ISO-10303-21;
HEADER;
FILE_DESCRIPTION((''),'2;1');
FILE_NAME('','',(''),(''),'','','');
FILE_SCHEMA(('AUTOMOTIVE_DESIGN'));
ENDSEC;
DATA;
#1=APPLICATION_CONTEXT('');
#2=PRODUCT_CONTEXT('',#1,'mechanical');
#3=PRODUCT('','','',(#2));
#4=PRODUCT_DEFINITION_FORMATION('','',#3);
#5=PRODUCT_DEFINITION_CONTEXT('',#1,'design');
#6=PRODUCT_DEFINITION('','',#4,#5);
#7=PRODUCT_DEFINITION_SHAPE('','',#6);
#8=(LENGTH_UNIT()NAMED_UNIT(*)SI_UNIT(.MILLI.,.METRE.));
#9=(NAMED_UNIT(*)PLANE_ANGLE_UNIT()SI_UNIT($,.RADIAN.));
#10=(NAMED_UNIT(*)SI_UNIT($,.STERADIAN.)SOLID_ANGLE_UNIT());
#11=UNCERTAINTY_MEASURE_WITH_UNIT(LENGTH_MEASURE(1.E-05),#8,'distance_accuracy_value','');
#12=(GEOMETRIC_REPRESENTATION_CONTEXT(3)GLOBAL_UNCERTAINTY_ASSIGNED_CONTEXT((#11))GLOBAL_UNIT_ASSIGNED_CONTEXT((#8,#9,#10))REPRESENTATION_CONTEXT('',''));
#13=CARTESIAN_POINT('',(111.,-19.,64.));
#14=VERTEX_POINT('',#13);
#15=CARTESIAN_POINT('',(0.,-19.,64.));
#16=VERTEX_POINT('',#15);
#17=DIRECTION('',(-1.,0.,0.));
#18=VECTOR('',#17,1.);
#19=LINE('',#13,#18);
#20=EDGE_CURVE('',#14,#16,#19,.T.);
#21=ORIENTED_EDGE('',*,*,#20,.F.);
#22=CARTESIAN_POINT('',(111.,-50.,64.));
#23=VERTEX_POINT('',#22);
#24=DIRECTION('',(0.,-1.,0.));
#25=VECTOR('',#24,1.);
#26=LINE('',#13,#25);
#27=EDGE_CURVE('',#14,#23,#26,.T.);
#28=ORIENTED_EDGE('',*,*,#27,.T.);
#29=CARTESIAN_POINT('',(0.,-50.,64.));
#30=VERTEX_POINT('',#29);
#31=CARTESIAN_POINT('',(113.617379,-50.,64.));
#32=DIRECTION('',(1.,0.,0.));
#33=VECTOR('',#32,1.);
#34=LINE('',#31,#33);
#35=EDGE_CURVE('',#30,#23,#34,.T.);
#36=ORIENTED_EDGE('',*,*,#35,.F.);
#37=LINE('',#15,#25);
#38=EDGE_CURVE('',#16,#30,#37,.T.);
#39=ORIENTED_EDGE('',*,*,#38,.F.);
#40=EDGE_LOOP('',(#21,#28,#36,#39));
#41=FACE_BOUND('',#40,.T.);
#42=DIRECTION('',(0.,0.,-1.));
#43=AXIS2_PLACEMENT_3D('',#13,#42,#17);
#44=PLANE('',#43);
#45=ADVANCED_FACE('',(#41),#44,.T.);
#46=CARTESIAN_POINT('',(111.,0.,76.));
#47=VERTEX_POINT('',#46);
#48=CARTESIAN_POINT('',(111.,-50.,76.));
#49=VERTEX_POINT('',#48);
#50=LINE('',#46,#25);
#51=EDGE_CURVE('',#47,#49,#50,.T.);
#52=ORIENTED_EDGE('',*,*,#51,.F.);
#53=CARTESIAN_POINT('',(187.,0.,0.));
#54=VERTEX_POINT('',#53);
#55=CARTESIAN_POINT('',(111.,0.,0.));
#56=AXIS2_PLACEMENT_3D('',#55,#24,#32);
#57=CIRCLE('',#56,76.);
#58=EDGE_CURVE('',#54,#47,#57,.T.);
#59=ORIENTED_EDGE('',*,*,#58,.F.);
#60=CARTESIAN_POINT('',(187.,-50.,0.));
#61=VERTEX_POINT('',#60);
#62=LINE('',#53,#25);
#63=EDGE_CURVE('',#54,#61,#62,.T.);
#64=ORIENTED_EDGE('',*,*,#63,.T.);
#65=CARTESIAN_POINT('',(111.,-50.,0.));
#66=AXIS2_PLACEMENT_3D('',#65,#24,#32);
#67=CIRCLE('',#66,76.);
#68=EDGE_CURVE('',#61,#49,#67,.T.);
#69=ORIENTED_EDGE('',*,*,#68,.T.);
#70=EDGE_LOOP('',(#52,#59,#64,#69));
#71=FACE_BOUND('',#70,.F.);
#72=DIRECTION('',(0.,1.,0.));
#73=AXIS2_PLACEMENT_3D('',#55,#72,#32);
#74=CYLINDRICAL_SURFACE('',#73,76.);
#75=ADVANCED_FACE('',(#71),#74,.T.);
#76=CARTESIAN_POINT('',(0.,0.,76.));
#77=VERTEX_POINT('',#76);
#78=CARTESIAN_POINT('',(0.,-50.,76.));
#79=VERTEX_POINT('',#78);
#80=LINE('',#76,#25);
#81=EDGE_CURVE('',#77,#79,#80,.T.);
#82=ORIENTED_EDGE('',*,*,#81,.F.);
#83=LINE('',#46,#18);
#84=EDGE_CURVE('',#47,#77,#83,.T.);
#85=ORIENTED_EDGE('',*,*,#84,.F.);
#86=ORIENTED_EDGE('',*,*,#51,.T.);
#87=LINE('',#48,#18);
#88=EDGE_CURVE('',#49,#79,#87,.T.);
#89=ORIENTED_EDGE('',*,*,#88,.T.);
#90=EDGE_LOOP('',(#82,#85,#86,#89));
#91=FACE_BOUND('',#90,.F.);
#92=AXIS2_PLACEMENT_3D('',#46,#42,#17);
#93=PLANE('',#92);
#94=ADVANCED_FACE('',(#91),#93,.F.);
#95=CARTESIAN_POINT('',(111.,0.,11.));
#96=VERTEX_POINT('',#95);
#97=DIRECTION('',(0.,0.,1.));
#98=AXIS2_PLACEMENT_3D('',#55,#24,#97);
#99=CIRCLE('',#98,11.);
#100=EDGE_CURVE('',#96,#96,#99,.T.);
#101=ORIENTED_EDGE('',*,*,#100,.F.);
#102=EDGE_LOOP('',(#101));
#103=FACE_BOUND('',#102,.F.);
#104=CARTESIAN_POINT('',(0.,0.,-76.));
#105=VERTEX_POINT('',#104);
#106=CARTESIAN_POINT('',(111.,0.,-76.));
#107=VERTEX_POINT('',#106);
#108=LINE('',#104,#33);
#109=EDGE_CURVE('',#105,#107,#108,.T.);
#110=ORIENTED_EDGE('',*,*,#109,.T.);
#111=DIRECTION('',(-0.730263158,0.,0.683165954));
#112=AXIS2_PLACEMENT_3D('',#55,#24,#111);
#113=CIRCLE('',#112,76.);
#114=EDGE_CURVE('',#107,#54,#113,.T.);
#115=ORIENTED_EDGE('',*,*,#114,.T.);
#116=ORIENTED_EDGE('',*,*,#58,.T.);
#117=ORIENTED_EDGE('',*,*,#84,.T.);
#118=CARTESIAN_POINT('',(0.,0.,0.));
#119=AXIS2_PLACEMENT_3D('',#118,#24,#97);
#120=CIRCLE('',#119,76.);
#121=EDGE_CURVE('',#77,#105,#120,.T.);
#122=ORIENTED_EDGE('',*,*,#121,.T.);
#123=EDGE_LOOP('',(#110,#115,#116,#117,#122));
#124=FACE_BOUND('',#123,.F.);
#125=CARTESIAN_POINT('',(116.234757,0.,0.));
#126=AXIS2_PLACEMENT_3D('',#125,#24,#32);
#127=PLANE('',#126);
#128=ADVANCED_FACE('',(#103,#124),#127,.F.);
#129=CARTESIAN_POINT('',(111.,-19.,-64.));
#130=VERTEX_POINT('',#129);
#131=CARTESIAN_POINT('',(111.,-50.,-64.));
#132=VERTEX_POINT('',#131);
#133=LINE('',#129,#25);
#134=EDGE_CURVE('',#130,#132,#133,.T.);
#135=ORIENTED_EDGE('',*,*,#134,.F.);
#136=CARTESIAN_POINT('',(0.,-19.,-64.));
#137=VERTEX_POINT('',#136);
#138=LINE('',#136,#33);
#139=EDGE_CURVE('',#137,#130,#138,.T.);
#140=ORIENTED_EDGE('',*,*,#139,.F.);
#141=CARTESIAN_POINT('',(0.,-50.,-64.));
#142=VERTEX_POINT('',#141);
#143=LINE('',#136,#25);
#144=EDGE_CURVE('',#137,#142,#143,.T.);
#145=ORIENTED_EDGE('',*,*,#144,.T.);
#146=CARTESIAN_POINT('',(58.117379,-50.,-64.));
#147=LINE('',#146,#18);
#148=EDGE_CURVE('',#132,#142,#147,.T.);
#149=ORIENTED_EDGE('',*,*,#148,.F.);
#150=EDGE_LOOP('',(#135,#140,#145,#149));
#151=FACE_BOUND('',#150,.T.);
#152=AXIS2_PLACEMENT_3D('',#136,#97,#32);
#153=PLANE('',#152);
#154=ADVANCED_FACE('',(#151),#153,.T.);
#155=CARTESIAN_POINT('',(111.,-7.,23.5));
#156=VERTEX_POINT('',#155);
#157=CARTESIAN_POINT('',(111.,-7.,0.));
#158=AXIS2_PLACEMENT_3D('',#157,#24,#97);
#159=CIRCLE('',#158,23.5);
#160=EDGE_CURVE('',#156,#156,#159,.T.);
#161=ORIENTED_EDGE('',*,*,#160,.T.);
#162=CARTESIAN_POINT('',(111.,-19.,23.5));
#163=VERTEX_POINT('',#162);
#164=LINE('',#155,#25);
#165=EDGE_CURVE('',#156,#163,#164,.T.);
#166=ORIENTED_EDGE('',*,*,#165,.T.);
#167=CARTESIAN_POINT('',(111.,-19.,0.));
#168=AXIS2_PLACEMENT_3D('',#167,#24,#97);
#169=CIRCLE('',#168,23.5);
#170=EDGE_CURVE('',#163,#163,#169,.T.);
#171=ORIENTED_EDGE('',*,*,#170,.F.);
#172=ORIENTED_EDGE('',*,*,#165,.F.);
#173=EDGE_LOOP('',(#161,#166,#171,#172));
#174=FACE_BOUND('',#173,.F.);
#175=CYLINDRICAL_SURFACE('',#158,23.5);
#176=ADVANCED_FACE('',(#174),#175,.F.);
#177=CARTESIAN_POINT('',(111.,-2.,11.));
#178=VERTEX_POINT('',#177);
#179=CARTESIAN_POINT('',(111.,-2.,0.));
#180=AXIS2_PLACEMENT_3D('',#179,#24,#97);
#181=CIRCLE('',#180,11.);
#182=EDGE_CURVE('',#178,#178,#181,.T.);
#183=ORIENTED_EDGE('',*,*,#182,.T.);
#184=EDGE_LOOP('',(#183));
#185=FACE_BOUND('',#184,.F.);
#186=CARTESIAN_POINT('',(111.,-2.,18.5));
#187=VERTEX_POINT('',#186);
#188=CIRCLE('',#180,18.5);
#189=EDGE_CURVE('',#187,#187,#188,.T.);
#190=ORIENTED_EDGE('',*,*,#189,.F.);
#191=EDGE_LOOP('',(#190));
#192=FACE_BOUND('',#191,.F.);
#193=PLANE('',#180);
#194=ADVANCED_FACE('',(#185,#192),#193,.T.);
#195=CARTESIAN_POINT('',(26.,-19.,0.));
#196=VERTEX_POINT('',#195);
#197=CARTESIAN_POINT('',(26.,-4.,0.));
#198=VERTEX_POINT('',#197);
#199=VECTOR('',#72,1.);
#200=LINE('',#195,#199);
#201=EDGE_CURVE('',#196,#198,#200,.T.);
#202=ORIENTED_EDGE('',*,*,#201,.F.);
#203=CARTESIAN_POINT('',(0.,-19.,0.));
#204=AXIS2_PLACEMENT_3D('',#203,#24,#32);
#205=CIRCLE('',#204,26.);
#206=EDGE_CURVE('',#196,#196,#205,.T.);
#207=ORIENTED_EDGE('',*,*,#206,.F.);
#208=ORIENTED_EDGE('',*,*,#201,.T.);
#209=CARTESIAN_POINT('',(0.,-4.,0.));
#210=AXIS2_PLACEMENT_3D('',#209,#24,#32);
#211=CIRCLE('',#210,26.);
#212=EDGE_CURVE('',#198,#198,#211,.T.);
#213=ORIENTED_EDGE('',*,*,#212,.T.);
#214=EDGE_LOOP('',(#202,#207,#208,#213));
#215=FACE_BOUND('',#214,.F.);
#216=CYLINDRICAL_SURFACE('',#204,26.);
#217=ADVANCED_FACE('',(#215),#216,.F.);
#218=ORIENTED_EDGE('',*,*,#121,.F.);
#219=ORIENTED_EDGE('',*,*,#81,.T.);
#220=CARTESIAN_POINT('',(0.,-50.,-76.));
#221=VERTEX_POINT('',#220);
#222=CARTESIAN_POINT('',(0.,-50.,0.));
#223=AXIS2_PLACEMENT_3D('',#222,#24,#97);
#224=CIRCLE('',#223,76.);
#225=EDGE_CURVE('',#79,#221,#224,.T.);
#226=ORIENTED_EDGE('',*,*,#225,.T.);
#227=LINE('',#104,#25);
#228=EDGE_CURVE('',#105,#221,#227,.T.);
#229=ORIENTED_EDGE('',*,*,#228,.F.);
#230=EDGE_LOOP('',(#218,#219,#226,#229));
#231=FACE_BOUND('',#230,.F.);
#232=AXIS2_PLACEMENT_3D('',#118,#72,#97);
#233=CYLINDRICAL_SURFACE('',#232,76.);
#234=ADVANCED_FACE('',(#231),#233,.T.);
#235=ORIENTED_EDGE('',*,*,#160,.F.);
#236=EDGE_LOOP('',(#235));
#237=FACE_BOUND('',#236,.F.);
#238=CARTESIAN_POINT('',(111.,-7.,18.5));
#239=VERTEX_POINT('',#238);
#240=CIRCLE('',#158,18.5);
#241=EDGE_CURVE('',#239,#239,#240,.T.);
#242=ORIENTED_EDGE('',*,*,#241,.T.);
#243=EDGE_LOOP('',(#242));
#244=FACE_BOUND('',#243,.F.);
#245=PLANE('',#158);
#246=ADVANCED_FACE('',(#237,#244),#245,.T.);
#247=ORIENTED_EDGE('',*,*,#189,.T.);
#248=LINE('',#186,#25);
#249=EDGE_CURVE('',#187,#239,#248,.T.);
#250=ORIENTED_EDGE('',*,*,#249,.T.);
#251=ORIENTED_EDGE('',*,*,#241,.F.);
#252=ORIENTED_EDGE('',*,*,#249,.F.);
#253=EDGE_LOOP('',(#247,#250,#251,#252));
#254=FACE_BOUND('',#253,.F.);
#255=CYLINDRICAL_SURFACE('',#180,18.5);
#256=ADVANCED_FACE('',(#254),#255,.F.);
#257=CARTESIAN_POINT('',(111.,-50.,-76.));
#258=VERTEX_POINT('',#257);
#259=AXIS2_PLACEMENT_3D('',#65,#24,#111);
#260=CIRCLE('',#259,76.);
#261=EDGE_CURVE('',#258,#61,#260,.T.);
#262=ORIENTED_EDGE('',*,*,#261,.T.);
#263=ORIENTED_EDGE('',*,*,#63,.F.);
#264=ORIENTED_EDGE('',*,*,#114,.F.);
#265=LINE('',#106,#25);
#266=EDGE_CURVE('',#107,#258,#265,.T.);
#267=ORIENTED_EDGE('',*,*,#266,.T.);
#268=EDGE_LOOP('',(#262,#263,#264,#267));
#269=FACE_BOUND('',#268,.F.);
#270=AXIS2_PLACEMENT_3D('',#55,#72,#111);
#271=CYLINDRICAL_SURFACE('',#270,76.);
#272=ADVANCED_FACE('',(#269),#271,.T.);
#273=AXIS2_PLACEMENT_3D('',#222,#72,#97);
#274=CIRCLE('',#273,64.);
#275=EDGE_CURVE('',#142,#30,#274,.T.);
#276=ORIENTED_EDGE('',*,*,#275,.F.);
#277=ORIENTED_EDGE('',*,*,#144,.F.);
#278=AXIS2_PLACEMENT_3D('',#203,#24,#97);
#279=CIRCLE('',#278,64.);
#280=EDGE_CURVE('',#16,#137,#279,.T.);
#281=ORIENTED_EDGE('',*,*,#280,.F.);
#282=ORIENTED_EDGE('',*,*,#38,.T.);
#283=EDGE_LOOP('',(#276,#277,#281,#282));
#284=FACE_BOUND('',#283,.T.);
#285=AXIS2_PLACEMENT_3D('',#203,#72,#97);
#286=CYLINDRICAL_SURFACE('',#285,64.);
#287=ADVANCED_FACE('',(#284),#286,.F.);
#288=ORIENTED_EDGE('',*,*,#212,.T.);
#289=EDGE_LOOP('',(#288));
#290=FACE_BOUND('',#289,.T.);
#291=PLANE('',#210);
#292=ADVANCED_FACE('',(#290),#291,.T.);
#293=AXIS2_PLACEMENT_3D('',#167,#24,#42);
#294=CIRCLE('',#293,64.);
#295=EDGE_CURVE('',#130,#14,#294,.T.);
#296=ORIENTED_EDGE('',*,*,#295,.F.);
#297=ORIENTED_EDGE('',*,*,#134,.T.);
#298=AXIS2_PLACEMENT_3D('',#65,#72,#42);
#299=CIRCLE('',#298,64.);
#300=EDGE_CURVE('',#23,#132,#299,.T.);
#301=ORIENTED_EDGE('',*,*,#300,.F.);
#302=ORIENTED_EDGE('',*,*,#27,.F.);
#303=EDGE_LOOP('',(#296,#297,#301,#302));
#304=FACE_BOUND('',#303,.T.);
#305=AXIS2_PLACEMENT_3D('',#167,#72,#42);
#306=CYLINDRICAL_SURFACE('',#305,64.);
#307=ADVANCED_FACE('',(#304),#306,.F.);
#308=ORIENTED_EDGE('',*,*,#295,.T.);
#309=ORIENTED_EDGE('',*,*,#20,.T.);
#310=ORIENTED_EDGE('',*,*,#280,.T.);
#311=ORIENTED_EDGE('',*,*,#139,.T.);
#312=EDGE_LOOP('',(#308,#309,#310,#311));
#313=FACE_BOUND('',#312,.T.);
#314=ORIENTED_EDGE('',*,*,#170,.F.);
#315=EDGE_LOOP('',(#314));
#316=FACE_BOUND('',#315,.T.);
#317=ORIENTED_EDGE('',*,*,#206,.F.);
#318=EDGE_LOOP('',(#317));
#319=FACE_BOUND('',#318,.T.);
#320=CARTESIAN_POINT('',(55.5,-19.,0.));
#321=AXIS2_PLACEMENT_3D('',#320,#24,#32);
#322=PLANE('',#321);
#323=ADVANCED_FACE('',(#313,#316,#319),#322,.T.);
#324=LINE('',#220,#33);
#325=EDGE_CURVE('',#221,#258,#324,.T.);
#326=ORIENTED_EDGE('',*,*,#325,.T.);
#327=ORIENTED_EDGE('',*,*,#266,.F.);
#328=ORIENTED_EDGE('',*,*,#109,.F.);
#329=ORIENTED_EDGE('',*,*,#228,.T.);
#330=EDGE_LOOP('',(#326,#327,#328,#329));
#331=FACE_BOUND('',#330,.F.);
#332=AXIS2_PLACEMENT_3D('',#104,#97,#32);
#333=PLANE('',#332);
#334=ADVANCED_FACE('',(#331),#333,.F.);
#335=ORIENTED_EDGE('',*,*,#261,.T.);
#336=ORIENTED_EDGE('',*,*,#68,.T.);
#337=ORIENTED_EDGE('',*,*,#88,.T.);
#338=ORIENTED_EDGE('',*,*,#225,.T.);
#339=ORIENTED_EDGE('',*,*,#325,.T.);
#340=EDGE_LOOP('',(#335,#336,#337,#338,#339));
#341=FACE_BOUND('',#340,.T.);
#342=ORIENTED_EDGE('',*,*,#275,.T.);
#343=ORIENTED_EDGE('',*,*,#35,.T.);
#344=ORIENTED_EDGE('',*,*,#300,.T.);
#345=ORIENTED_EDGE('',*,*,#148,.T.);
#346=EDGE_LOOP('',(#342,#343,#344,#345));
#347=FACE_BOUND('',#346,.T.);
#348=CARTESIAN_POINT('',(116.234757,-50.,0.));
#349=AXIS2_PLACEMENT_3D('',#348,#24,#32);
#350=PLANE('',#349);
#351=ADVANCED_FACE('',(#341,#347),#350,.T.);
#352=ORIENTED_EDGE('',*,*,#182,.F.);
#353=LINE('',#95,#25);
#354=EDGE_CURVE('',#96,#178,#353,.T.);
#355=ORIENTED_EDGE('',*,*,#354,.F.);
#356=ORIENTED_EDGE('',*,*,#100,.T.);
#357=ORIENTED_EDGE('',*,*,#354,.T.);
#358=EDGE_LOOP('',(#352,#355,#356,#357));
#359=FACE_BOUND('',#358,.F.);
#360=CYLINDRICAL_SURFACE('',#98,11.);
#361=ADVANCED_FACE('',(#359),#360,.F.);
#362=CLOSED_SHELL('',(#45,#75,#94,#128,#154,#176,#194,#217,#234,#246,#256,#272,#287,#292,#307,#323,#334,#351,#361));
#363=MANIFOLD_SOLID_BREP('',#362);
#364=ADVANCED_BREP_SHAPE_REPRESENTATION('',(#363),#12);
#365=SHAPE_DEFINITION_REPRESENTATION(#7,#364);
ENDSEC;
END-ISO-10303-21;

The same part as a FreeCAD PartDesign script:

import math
import FreeCAD as App
import Part
import Sketcher
from FreeCAD import Vector
Q = App.Units.Quantity


def add_polygon(sketch, points):
    """Adds a closed chain of lines whose ends are joined by coincident constraints."""
    first, n = sketch.GeometryCount, len(points)
    for a, b in zip(points, points[1:] + points[:1]):
        sketch.addGeometry(Part.LineSegment(App.Vector(*a, 0), App.Vector(*b, 0)), False)
    for i in range(n):
        sketch.addConstraint(Sketcher.Constraint("Coincident", first + i, 2, first + (i + 1) % n, 1))

doc = App.newDocument("Part")
body = doc.addObject("PartDesign::Body", "Body")

sketch1 = body.newObject("Sketcher::SketchObject", "Sketch")
sketch1.AttachmentSupport = (doc.getObject("XZ_Plane"), [""])
sketch1.MapMode = "FlatFace"
sketch1.addGeometry([
    Part.ArcOfCircle(Part.Circle(Vector(111, 0, 0), Vector(0, 0, 1), 76), math.radians(0), math.radians(90)),
    Part.LineSegment(Vector(111, 76, 0), Vector(0, 76, 0)),
    Part.ArcOfCircle(Part.Circle(Vector(0, 0, 0), Vector(0, 0, 1), 76), math.radians(90), math.radians(270)),
    Part.LineSegment(Vector(0, -76, 0), Vector(111, -76, 0)),
    Part.ArcOfCircle(Part.Circle(Vector(111, 0, 0), Vector(0, 0, 1), 76), math.radians(-90), math.radians(0)),
], False)
sketch1.addConstraint([
    Sketcher.Constraint("Tangent", 0, 2, 1, 1),
    Sketcher.Constraint("Tangent", 1, 2, 2, 1),
    Sketcher.Constraint("Tangent", 2, 2, 3, 1),
    Sketcher.Constraint("Tangent", 3, 2, 4, 1),
    Sketcher.Constraint("Tangent", 4, 2, 0, 1),
    Sketcher.Constraint("Horizontal", 1),
    Sketcher.Constraint("Horizontal", 3),
    Sketcher.Constraint("Coincident", 2, 3, -1, 1),
    Sketcher.Constraint("Equal", 0, 2),
    Sketcher.Constraint("PointOnObject", 4, 2, -1),
    Sketcher.Constraint("Radius", 0, Q("76 mm")),
    Sketcher.Constraint("DistanceX", 1, 2, 1, 1, Q("111 mm")),
])
pad1 = body.newObject("PartDesign::Pad", "Pad")
pad1.Profile = sketch1
pad1.Length = 50

sketch2 = body.newObject("Sketcher::SketchObject", "Sketch001")
sketch2.AttachmentSupport = (doc.getObject("XZ_Plane"), [""])
sketch2.MapMode = "FlatFace"
sketch2.AttachmentOffset = App.Placement(Vector(0, 0, 19), App.Rotation())
sketch2.addGeometry([
    Part.LineSegment(Vector(111, 64, 0), Vector(0, 64, 0)),
    Part.ArcOfCircle(Part.Circle(Vector(0, 0, 0), Vector(0, 0, 1), 64), math.radians(90), math.radians(270)),
    Part.LineSegment(Vector(0, -64, 0), Vector(111, -64, 0)),
    Part.ArcOfCircle(Part.Circle(Vector(111, 0, 0), Vector(0, 0, 1), 64), math.radians(-90), math.radians(90)),
], False)
sketch2.addConstraint([
    Sketcher.Constraint("Tangent", 0, 2, 1, 1),
    Sketcher.Constraint("Tangent", 1, 2, 2, 1),
    Sketcher.Constraint("Tangent", 2, 2, 3, 1),
    Sketcher.Constraint("Tangent", 3, 2, 0, 1),
    Sketcher.Constraint("Horizontal", 0),
    Sketcher.Constraint("Horizontal", 2),
    Sketcher.Constraint("Coincident", 1, 3, -1, 1),
    Sketcher.Constraint("Radius", 1, Q("64 mm")),
    Sketcher.Constraint("DistanceX", 0, 2, 0, 1, Q("111 mm")),
])
pocket1 = body.newObject("PartDesign::Pocket", "Pocket")
pocket1.Profile = sketch2
pocket1.Length = 50
pocket1.Reversed = True

sketch3 = body.newObject("Sketcher::SketchObject", "Sketch002")
sketch3.AttachmentSupport = (doc.getObject("XZ_Plane"), [""])
sketch3.MapMode = "FlatFace"
sketch3.AttachmentOffset = App.Placement(Vector(0, 0, 19), App.Rotation())
sketch3.addGeometry(Part.Circle(Vector(0, 0, 0), Vector(0, 0, 1), 26), False)
sketch3.addConstraint([
    Sketcher.Constraint("Coincident", 0, 3, -1, 1),
    Sketcher.Constraint("Diameter", 0, Q("52 mm")),
])
pocket2 = body.newObject("PartDesign::Pocket", "Pocket001")
pocket2.Profile = sketch3
pocket2.Length = 15

sketch4 = body.newObject("Sketcher::SketchObject", "Sketch003")
sketch4.AttachmentSupport = (doc.getObject("YZ_Plane"), [""])
sketch4.MapMode = "FlatFace"
sketch4.AttachmentOffset = App.Placement(Vector(0, 0, 111), App.Rotation())
add_polygon(sketch4, [(-19, 0), (0, 0), (0, 11), (-2, 11), (-2, 18.5), (-7, 18.5), (-7, 23.5), (-19, 23.5)])
sketch4.addConstraint([
    Sketcher.Constraint("Horizontal", 0),
    Sketcher.Constraint("Vertical", 1),
    Sketcher.Constraint("Horizontal", 2),
    Sketcher.Constraint("Vertical", 3),
    Sketcher.Constraint("Horizontal", 4),
    Sketcher.Constraint("Vertical", 5),
    Sketcher.Constraint("Horizontal", 6),
    Sketcher.Constraint("Vertical", 7),
    Sketcher.Constraint("Coincident", 0, 2, -1, 1),
    Sketcher.Constraint("Equal", 4, 5),
    Sketcher.Constraint("DistanceX", 0, 1, 0, 2, Q("19 mm")),
    Sketcher.Constraint("DistanceX", 2, 2, 2, 1, Q("2 mm")),
    Sketcher.Constraint("DistanceX", 4, 2, 4, 1, Q("5 mm")),
    Sketcher.Constraint("DistanceY", 1, 1, 1, 2, Q("11 mm")),
    Sketcher.Constraint("DistanceY", 3, 1, 3, 2, Q("7.5 mm")),
])
groove = body.newObject("PartDesign::Groove", "Groove")
groove.Profile = sketch4
groove.ReferenceAxis = (sketch4, ["H_Axis"])
groove.Angle = 360

doc.recompute()
